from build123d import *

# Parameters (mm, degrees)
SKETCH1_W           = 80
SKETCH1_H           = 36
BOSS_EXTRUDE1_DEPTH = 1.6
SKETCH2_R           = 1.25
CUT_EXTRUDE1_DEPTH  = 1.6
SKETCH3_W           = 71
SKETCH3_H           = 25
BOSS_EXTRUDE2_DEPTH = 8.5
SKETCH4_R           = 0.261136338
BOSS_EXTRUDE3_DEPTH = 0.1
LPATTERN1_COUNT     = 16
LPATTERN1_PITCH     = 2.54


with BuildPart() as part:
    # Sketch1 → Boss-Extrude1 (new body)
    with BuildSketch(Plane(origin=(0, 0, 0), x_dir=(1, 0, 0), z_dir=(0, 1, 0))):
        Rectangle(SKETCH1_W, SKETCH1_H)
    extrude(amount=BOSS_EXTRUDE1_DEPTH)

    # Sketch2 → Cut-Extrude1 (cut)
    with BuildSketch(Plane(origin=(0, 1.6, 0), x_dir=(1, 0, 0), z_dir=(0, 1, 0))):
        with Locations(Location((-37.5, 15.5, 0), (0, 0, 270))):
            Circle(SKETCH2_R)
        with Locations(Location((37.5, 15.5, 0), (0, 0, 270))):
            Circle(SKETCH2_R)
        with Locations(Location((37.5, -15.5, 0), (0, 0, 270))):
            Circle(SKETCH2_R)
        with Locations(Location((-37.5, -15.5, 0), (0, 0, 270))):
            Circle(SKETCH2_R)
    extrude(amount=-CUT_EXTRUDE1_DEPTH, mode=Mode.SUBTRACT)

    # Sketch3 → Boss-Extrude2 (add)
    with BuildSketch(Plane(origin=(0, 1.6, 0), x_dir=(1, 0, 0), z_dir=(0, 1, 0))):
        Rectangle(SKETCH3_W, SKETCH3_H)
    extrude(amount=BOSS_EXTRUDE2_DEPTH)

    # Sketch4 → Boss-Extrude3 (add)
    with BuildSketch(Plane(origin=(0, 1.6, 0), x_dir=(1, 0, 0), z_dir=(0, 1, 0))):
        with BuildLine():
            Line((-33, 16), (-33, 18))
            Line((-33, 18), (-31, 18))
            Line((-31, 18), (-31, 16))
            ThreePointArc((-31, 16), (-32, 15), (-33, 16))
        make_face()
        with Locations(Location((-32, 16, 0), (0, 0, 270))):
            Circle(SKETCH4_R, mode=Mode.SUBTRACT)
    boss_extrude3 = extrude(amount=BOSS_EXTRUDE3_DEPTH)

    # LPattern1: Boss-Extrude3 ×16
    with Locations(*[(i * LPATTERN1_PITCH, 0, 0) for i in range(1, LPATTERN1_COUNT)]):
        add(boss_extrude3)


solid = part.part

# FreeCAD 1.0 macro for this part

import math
import FreeCAD as App
import Part
import Sketcher
from FreeCAD import Vector
Q = App.Units.Quantity


def add_polygon(sketch, points):
    """Adds a closed chain of lines whose ends are joined by coincident constraints."""
    first, n = sketch.GeometryCount, len(points)
    for a, b in zip(points, points[1:] + points[:1]):
        sketch.addGeometry(Part.LineSegment(App.Vector(*a, 0), App.Vector(*b, 0)), False)
    for i in range(n):
        sketch.addConstraint(Sketcher.Constraint("Coincident", first + i, 2, first + (i + 1) % n, 1))

doc = App.newDocument("Part")
params = doc.addObject("Spreadsheet::Sheet", "Params")
for row, (alias, value) in enumerate([
    ("sketch1_width", "80 mm"),
    ("sketch1_height", "36 mm"),
    ("pad1_length", "1.6 mm"),
    ("sketch2_diameter", "2.5 mm"),
    ("pocket1_length", "1.6 mm"),
    ("sketch3_width", "71 mm"),
    ("sketch3_height", "25 mm"),
    ("pad2_length", "8.5 mm"),
    ("sketch4_radius", "1 mm"),
    ("pad3_length", "0.1 mm"),
    ("linearpattern_pitch", "2.54 mm"),
], start=1):
    params.set(f"A{row}", alias)
    params.set(f"B{row}", "=" + value)
    params.setAlias(f"B{row}", alias)

body = doc.addObject("PartDesign::Body", "Body")

sketch1 = doc.addObject("Sketcher::SketchObject", "Sketch")
body.addObject(sketch1)
sketch1.AttachmentSupport = (doc.XZ_Plane, [""])
sketch1.MapMode = "FlatFace"
add_polygon(sketch1, [(-40, -18), (-40, 18), (40, 18), (40, -18)])
sketch1.addConstraint([
    Sketcher.Constraint("Vertical", 0),
    Sketcher.Constraint("Horizontal", 1),
    Sketcher.Constraint("Vertical", 2),
    Sketcher.Constraint("Horizontal", 3),
    Sketcher.Constraint("Symmetric", 0, 2, 2, 2, -1, 1),
    Sketcher.Constraint("DistanceX", 1, 1, 1, 2, Q("80 mm")),
    Sketcher.Constraint("DistanceY", 0, 1, 0, 2, Q("36 mm")),
])
sketch1.setExpression("Constraints[9]", "Params.sketch1_width")
sketch1.setExpression("Constraints[10]", "Params.sketch1_height")
pad1 = doc.addObject("PartDesign::Pad", "Pad")
body.addObject(pad1)
pad1.Profile = sketch1
pad1.setExpression("Length", "Params.pad1_length")
pad1.Reversed = True

sketch2 = doc.addObject("Sketcher::SketchObject", "Sketch001")
body.addObject(sketch2)
sketch2.AttachmentSupport = (doc.XZ_Plane, [""])
sketch2.MapMode = "FlatFace"
sketch2.AttachmentOffset = App.Placement(Vector(0, 0, -1.6), App.Rotation())
sketch2.addGeometry([
    Part.Circle(Vector(-37.5, -15.5, 0), Vector(0, 0, 1), 1.2),
    Part.Circle(Vector(37.5, -15.5, 0), Vector(0, 0, 1), 1.2),
    Part.Circle(Vector(37.5, 15.5, 0), Vector(0, 0, 1), 1.2),
    Part.Circle(Vector(-37.5, 15.5, 0), Vector(0, 0, 1), 1.2),
], False)
sketch2.addConstraint([
    Sketcher.Constraint("Equal", 0, 1),
    Sketcher.Constraint("Equal", 1, 2),
    Sketcher.Constraint("Equal", 2, 3),
    Sketcher.Constraint("Symmetric", 0, 3, 2, 3, -1, 1),
    Sketcher.Constraint("Symmetric", 1, 3, 3, 3, -1, 1),
    Sketcher.Constraint("Symmetric", 0, 3, 1, 3, -2),
    Sketcher.Constraint("Diameter", 0, Q("2.5 mm")),
    Sketcher.Constraint("DistanceX", 0, 3, 1, 3, Q("75 mm")),
    Sketcher.Constraint("DistanceY", 1, 3, 2, 3, Q("31 mm")),
])
sketch2.setExpression("Constraints[6]", "Params.sketch2_diameter")
pocket1 = doc.addObject("PartDesign::Pocket", "Pocket")
body.addObject(pocket1)
pocket1.Profile = sketch2
pocket1.setExpression("Length", "Params.pocket1_length")
pocket1.Reversed = True

sketch3 = doc.addObject("Sketcher::SketchObject", "Sketch002")
body.addObject(sketch3)
sketch3.AttachmentSupport = (doc.XZ_Plane, [""])
sketch3.MapMode = "FlatFace"
sketch3.AttachmentOffset = App.Placement(Vector(0, 0, -1.6), App.Rotation())
add_polygon(sketch3, [(-36, -12), (-36, 12), (36, 12), (36, -12)])
sketch3.addConstraint([
    Sketcher.Constraint("Vertical", 0),
    Sketcher.Constraint("Horizontal", 1),
    Sketcher.Constraint("Vertical", 2),
    Sketcher.Constraint("Horizontal", 3),
    Sketcher.Constraint("Symmetric", 0, 2, 2, 2, -1, 1),
    Sketcher.Constraint("DistanceX", 1, 1, 1, 2, Q("71 mm")),
    Sketcher.Constraint("DistanceY", 0, 1, 0, 2, Q("25 mm")),
])
sketch3.setExpression("Constraints[9]", "Params.sketch3_width")
sketch3.setExpression("Constraints[10]", "Params.sketch3_height")
pad2 = doc.addObject("PartDesign::Pad", "Pad001")
body.addObject(pad2)
pad2.Profile = sketch3
pad2.setExpression("Length", "Params.pad2_length")
pad2.Reversed = True

sketch4 = doc.addObject("Sketcher::SketchObject", "Sketch003")
body.addObject(sketch4)
sketch4.AttachmentSupport = (doc.XZ_Plane, [""])
sketch4.MapMode = "FlatFace"
sketch4.AttachmentOffset = App.Placement(Vector(0, 0, -1.6), App.Rotation())
sketch4.addGeometry([
    Part.LineSegment(Vector(-33, -18, 0), Vector(-33, -16, 0)),
    Part.ArcOfCircle(Part.Circle(Vector(-32, -16, 0), Vector(0, 0, 1), 1), math.radians(0), math.radians(180)),
    Part.LineSegment(Vector(-31, -16, 0), Vector(-31, -18, 0)),
    Part.LineSegment(Vector(-31, -18, 0), Vector(-33, -18, 0)),
    Part.Circle(Vector(-32, -16, 0), Vector(0, 0, 1), 0.26),
], False)
sketch4.addConstraint([
    Sketcher.Constraint("Tangent", 0, 2, 1, 2),
    Sketcher.Constraint("Tangent", 1, 1, 2, 1),
    Sketcher.Constraint("Coincident", 2, 2, 3, 1),
    Sketcher.Constraint("Coincident", 3, 2, 0, 1),
    Sketcher.Constraint("Vertical", 0),
    Sketcher.Constraint("Vertical", 2),
    Sketcher.Constraint("Horizontal", 3),
    Sketcher.Constraint("Coincident", 4, 3, 1, 3),
    Sketcher.Constraint("Equal", 3, 0),
    Sketcher.Constraint("Radius", 1, Q("1 mm")),
    Sketcher.Constraint("DistanceX", 1, 3, -1, 1, Q("32 mm")),
    Sketcher.Constraint("DistanceY", 1, 3, -1, 1, Q("16 mm")),
    Sketcher.Constraint("Diameter", 4, Q("0.522273 mm")),
])
sketch4.setExpression("Constraints[9]", "Params.sketch4_radius")
pad3 = doc.addObject("PartDesign::Pad", "Pad002")
body.addObject(pad3)
pad3.Profile = sketch4
pad3.setExpression("Length", "Params.pad3_length")
pad3.Reversed = True
doc.recompute()

linearpattern = doc.addObject("PartDesign::LinearPattern", "LinearPattern")
body.addObject(linearpattern)
linearpattern.Originals = [pad3]
linearpattern.Direction = (doc.X_Axis, [""])
linearpattern.Mode = "offset"
linearpattern.setExpression("Offset", "Params.linearpattern_pitch")
linearpattern.Occurrences = 16
body.Tip = linearpattern

doc.recompute()
